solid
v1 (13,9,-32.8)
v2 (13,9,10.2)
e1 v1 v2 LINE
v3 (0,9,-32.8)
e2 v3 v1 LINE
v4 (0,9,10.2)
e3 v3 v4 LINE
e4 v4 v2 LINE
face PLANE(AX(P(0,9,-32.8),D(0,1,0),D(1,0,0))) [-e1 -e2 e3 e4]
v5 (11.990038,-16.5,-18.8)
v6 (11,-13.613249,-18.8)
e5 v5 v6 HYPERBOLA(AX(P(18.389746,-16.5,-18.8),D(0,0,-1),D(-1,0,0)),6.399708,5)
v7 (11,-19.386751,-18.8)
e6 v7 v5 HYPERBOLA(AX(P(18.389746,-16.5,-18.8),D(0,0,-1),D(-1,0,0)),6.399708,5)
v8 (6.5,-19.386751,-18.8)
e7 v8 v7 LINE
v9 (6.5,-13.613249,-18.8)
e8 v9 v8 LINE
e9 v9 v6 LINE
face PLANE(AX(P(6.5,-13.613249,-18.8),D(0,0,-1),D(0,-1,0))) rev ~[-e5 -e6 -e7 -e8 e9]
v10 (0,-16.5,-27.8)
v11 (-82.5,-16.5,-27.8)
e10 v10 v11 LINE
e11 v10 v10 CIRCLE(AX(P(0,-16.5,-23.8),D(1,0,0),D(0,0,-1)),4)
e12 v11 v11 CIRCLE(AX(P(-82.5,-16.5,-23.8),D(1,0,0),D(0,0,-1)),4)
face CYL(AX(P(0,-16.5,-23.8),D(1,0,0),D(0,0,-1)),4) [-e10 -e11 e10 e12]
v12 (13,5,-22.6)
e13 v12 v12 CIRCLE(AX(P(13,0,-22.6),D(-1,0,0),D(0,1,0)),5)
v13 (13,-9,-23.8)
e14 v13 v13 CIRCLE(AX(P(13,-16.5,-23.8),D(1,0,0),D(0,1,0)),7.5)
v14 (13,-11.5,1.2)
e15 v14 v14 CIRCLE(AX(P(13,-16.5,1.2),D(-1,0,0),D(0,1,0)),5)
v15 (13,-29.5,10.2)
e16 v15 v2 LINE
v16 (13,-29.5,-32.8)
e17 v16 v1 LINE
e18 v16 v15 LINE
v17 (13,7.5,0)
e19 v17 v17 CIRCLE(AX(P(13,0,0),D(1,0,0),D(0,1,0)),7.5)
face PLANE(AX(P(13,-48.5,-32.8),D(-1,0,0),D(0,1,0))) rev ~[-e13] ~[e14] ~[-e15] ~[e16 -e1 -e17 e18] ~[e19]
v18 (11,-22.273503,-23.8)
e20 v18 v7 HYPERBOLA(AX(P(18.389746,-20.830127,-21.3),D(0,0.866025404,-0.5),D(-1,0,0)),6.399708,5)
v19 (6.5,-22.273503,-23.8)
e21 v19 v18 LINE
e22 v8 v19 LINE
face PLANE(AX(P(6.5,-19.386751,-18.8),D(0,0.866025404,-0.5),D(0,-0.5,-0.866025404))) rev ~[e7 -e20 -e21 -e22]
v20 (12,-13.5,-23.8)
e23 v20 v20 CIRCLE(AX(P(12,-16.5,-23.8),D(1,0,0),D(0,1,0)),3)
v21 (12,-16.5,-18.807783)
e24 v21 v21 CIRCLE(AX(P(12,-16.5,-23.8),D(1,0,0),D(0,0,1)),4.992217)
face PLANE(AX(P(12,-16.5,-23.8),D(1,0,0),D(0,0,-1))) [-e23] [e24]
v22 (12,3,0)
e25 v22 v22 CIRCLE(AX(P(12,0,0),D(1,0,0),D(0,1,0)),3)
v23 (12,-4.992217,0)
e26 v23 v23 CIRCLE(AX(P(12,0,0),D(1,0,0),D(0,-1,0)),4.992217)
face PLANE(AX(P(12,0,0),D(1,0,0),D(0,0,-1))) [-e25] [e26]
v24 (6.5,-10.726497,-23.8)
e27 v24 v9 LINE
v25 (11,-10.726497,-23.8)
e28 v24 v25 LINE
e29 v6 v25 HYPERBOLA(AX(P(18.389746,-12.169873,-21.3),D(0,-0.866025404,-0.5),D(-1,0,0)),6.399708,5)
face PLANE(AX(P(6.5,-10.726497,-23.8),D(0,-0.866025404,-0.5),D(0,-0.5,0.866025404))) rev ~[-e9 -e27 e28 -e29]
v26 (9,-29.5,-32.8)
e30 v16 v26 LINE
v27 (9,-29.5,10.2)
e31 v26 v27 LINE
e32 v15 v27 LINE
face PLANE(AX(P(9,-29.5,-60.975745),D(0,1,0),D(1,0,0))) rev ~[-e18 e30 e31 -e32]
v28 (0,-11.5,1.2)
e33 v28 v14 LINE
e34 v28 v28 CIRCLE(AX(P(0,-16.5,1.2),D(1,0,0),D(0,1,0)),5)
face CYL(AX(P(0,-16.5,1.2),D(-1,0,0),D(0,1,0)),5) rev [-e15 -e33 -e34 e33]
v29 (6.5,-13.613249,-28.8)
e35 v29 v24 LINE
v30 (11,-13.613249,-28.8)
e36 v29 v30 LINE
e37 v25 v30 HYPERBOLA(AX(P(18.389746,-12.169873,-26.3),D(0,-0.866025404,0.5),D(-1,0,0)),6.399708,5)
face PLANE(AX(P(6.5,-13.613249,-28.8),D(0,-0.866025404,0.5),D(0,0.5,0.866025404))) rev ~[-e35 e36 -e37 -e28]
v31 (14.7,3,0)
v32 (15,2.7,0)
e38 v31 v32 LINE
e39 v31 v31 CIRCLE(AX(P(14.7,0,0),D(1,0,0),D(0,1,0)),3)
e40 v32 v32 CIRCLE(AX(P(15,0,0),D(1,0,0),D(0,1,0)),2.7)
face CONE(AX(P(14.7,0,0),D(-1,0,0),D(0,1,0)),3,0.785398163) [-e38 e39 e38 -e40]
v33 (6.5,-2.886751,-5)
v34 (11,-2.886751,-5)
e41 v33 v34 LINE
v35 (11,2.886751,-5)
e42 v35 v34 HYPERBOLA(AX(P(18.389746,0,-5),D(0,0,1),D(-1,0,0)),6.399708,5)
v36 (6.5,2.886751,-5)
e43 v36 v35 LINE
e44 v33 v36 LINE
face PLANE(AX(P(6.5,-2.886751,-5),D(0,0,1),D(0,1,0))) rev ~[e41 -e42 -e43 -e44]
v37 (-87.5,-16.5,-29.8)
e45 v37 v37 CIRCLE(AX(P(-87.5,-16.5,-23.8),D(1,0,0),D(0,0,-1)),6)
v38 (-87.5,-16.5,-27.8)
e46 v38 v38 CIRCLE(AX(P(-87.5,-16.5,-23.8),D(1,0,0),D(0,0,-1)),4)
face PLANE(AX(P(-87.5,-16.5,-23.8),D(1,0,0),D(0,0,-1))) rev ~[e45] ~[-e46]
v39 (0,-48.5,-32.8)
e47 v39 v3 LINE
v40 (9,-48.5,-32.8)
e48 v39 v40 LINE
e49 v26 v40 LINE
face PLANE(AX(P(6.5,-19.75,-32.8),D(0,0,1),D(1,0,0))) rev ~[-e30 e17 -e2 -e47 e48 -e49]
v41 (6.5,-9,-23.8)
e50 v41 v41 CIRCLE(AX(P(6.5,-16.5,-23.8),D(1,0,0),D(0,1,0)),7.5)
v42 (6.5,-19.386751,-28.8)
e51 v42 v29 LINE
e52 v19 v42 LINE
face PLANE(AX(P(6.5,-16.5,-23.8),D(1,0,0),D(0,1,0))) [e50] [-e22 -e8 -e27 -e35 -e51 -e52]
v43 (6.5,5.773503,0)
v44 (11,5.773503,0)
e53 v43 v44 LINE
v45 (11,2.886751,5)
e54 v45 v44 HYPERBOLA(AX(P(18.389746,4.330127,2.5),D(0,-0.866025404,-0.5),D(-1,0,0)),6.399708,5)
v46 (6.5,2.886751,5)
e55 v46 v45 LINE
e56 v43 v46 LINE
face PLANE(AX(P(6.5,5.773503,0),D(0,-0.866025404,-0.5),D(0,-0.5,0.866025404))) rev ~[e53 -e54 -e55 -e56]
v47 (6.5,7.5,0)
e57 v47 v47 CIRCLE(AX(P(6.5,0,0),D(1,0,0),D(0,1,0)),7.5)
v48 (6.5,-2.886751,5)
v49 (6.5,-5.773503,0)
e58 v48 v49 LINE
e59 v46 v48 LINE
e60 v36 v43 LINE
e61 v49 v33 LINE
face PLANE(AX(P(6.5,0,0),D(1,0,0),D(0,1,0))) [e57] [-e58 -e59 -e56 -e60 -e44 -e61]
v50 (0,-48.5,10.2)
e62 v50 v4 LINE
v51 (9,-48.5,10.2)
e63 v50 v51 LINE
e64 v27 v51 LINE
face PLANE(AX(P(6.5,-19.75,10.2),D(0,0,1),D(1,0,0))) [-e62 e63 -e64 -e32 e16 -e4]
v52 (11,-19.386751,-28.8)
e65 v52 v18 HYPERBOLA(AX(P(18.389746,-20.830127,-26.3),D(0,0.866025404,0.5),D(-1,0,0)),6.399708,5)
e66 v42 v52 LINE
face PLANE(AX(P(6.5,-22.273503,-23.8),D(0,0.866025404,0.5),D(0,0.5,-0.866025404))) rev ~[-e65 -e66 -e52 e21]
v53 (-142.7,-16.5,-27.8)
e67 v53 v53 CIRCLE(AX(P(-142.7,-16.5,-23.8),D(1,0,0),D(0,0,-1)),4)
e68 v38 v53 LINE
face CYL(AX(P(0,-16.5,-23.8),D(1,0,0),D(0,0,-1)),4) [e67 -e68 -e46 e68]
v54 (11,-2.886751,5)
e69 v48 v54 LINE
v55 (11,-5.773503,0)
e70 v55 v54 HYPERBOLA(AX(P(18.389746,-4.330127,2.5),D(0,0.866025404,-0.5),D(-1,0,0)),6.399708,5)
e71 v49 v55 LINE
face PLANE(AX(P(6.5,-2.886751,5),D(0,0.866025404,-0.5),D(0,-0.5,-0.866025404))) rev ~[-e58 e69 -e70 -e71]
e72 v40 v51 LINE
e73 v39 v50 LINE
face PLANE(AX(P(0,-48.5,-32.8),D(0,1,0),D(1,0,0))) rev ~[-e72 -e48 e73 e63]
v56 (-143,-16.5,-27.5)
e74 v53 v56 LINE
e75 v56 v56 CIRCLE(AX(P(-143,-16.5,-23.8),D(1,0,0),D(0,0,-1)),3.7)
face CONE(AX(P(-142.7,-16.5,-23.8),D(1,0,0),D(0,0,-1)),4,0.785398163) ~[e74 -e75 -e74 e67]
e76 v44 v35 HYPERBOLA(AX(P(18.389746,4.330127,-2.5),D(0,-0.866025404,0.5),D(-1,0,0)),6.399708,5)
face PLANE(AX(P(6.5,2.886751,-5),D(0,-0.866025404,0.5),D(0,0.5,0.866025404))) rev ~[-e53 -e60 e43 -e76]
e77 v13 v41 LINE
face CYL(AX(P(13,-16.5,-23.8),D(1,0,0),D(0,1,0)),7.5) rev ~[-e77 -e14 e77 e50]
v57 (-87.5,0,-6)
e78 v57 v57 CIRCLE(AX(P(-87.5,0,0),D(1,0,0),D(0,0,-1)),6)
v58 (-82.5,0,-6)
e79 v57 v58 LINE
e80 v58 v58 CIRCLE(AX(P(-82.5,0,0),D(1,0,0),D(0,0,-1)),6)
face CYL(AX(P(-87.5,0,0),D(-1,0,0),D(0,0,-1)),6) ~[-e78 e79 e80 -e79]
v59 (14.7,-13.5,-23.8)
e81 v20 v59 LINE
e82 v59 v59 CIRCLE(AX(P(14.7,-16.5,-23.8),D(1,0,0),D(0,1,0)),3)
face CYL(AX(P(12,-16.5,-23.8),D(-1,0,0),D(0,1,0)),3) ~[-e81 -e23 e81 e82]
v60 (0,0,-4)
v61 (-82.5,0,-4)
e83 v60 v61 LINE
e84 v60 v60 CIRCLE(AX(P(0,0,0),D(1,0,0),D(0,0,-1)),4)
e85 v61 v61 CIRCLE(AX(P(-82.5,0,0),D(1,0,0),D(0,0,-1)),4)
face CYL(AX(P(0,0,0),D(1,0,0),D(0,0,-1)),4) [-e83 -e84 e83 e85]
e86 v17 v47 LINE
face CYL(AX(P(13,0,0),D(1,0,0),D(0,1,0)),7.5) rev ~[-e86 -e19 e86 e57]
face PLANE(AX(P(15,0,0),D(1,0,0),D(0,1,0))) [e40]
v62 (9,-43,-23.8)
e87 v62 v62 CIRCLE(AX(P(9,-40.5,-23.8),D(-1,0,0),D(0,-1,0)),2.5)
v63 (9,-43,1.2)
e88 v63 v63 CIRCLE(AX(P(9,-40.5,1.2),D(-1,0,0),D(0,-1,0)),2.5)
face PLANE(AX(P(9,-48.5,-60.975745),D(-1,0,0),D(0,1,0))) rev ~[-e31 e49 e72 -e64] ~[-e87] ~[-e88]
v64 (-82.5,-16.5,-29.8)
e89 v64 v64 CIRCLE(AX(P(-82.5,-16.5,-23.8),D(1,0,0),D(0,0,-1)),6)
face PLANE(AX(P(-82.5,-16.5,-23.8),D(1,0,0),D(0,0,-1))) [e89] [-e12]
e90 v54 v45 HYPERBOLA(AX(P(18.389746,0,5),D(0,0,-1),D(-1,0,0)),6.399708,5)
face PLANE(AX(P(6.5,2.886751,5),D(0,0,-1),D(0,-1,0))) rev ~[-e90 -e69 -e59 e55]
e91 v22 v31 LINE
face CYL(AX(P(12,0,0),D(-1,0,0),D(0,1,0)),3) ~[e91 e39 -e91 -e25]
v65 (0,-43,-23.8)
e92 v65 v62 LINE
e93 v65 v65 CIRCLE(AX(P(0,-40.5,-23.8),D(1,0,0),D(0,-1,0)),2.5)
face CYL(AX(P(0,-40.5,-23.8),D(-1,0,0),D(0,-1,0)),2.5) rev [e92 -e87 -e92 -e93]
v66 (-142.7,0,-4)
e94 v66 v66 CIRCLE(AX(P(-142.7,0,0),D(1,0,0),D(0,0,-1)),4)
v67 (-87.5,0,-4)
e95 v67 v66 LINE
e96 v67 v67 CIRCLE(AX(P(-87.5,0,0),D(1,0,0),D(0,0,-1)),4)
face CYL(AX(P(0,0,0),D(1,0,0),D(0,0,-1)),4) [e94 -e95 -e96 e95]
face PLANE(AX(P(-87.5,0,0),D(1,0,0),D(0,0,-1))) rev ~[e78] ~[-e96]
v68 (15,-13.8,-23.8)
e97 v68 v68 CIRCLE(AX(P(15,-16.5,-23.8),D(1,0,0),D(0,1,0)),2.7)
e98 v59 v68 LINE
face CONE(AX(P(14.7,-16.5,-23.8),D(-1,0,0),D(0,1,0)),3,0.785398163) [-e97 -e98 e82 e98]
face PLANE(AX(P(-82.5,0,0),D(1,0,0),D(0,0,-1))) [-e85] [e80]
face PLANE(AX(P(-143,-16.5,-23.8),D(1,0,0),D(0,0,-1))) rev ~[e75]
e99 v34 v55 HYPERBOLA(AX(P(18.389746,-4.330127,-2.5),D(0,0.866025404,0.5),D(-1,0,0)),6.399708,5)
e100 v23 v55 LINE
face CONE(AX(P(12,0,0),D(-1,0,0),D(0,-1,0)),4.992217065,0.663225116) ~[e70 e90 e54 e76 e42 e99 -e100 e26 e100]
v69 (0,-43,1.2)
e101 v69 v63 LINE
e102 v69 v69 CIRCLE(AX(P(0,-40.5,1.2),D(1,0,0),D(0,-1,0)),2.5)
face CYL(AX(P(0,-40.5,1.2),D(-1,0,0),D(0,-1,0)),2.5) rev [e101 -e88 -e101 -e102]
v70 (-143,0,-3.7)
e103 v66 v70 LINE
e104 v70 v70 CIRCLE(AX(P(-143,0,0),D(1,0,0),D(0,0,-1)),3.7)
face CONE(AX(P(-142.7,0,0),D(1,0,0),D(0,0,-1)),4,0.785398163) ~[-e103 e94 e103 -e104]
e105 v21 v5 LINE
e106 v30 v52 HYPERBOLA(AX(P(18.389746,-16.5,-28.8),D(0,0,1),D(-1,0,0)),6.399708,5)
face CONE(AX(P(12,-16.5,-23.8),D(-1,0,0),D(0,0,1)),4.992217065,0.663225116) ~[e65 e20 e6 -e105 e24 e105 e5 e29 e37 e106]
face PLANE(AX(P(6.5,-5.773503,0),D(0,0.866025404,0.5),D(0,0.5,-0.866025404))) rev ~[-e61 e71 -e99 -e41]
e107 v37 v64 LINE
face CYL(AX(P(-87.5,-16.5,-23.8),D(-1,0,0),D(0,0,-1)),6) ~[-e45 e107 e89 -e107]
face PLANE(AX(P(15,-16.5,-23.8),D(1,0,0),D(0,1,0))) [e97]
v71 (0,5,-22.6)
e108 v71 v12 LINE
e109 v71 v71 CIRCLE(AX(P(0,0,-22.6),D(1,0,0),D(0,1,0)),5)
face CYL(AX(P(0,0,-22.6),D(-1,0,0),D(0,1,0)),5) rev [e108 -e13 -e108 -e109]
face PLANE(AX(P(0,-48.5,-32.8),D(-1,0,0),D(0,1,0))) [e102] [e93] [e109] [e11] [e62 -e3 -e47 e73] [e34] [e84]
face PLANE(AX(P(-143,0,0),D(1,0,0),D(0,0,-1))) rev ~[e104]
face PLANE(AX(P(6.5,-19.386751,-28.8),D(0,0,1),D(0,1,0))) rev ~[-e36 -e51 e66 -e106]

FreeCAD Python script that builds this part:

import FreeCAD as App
import Part
import Sketcher
from FreeCAD import Vector
Q = App.Units.Quantity


def edges_at(feature, points):
    """Names of the edges that pass closest to the given points."""
    edges = feature.Shape.Edges
    near = lambda p: min(range(len(edges)), key=lambda i: edges[i].distToShape(Part.Vertex(*p))[0])
    return sorted({f"Edge{near(p) + 1}" for p in points})


def add_polygon(sketch, points):
    """Adds a closed chain of lines whose ends are joined by coincident constraints."""
    first, n = sketch.GeometryCount, len(points)
    for a, b in zip(points, points[1:] + points[:1]):
        sketch.addGeometry(Part.LineSegment(App.Vector(*a, 0), App.Vector(*b, 0)), False)
    for i in range(n):
        sketch.addConstraint(Sketcher.Constraint("Coincident", first + i, 2, first + (i + 1) % n, 1))

doc = App.newDocument("Part")
body = doc.addObject("PartDesign::Body", "Body")

sketch1 = body.newObject("Sketcher::SketchObject", "Sketch")
sketch1.AttachmentSupport = (doc.getObject("XY_Plane"), [""])
sketch1.MapMode = "FlatFace"
add_polygon(sketch1, [(0, 9), (0, -48), (13, -48), (13, 9)])
sketch1.addConstraint([
    Sketcher.Constraint("Vertical", 0),
    Sketcher.Constraint("Horizontal", 1),
    Sketcher.Constraint("Vertical", 2),
    Sketcher.Constraint("Horizontal", 3),
    Sketcher.Constraint("PointOnObject", 0, 2, -2),
    Sketcher.Constraint("DistanceX", 1, 1, 1, 2, Q("13 mm")),
    Sketcher.Constraint("DistanceY", 0, 2, 0, 1, Q("57.5 mm")),
    Sketcher.Constraint("DistanceY", -1, 1, 2, 2, Q("9 mm")),
])
pad1 = body.newObject("PartDesign::Pad", "Pad")
pad1.Profile = sketch1
pad1.Type = "TwoLengths"
pad1.Length = 10.2
pad1.Length2 = 32.8

sketch2 = body.newObject("Sketcher::SketchObject", "Sketch001")
sketch2.AttachmentSupport = (doc.getObject("XY_Plane"), [""])
sketch2.MapMode = "FlatFace"
add_polygon(sketch2, [(9, -29.5), (9, -48.5), (13, -48.5), (13, -29.5)])
sketch2.addConstraint([
    Sketcher.Constraint("Vertical", 0),
    Sketcher.Constraint("Horizontal", 1),
    Sketcher.Constraint("Vertical", 2),
    Sketcher.Constraint("Horizontal", 3),
    Sketcher.Constraint("DistanceX", 1, 1, 1, 2, Q("4 mm")),
    Sketcher.Constraint("DistanceY", 0, 2, 0, 1, Q("19 mm")),
    Sketcher.Constraint("DistanceX", -1, 1, 0, 2, Q("9 mm")),
    Sketcher.Constraint("DistanceY", 0, 2, -1, 1, Q("48.5 mm")),
])
pocket1 = body.newObject("PartDesign::Pocket", "Pocket")
pocket1.Profile = sketch2
pocket1.Type = "ThroughAll"
pocket1.Midplane = True

sketch3 = body.newObject("Sketcher::SketchObject", "Sketch002")
sketch3.AttachmentSupport = (doc.getObject("YZ_Plane"), [""])
sketch3.MapMode = "FlatFace"
sketch3.AttachmentOffset = App.Placement(Vector(0, 0, 13), App.Rotation())
sketch3.addGeometry([
    Part.Circle(Vector(0, 0, 0), Vector(0, 0, 1), 8),
    Part.Circle(Vector(-16, -24, 0), Vector(0, 0, 1), 8),
], False)
sketch3.addConstraint([
    Sketcher.Constraint("Coincident", 0, 3, -1, 1),
    Sketcher.Constraint("Equal", 0, 1),
    Sketcher.Constraint("Diameter", 0, Q("15 mm")),
    Sketcher.Constraint("DistanceX", 1, 3, -1, 1, Q("16.5 mm")),
    Sketcher.Constraint("DistanceY", 1, 3, -1, 1, Q("23.8 mm")),
])
pocket2 = body.newObject("PartDesign::Pocket", "Pocket001")
pocket2.Profile = sketch3
pocket2.Length = 6.5

sketch4 = body.newObject("Sketcher::SketchObject", "Sketch003")
sketch4.AttachmentSupport = (doc.getObject("YZ_Plane"), [""])
sketch4.MapMode = "FlatFace"
sketch4.AttachmentOffset = App.Placement(Vector(0, 0, 6.5), App.Rotation())
add_polygon(sketch4, [(6, 0), (3, 5), (-3, 5), (-6, 0), (-3, -5), (3, -5)])
add_polygon(sketch4, [(-11, -24), (-14, -19), (-19, -19), (-22, -24), (-19, -29), (-14, -29)])
sketch4.addConstraint([
    Sketcher.Constraint("Horizontal", 1),
    Sketcher.Constraint("Horizontal", 4),
    Sketcher.Constraint("Horizontal", 7),
    Sketcher.Constraint("Horizontal", 10),
    Sketcher.Constraint("Symmetric", 0, 2, 3, 2, -1, 1),
    Sketcher.Constraint("Symmetric", 2, 2, 5, 2, -1, 1),
    Sketcher.Constraint("PointOnObject", 2, 2, -1),
    Sketcher.Constraint("Parallel", 2, 5),
    Sketcher.Constraint("Parallel", 3, 6),
    Sketcher.Constraint("Parallel", 5, 8),
    Sketcher.Constraint("Parallel", 6, 9),
    Sketcher.Constraint("Parallel", 8, 11),
    Sketcher.Constraint("Horizontal", 8, 2, 11, 2),
    Sketcher.Constraint("Vertical", 1, 2, 3, 2),
    Sketcher.Constraint("Vertical", 7, 2, 9, 2),
    Sketcher.Constraint("Equal", 4, 7),
    Sketcher.Constraint("Equal", 5, 6),
    Sketcher.Constraint("Angle", 0, Q("120 deg")),
    Sketcher.Constraint("DistanceY", -1, 1, 0, 2, Q("5 mm")),
    Sketcher.Constraint("DistanceY", 6, 2, -1, 1, Q("18.8 mm")),
    Sketcher.Constraint("DistanceX", 6, 2, 4, 2, Q("16.5 mm")),
    Sketcher.Constraint("DistanceX", 1, 2, 1, 1, Q("5.773503 mm")),
])
pad2 = body.newObject("PartDesign::Pad", "Pad001")
pad2.Profile = sketch4
pad2.Length = 5.5

sketch5 = body.newObject("Sketcher::SketchObject", "Sketch004")
sketch5.AttachmentSupport = (doc.getObject("XY_Plane"), [""])
sketch5.MapMode = "FlatFace"
add_polygon(sketch5, [(12, 5.8), (12, 5), (11, 5.8)])
sketch5.addConstraint([
    Sketcher.Constraint("Vertical", 0),
    Sketcher.Constraint("Horizontal", 2),
    Sketcher.Constraint("DistanceX", 2, 1, 2, 2, Q("1 mm")),
    Sketcher.Constraint("Angle", 1, Q("142 deg")),
    Sketcher.Constraint("DistanceX", -1, 1, 0, 2, Q("12 mm")),
    Sketcher.Constraint("DistanceY", -1, 1, 0, 2, Q("4.992217 mm")),
])
groove = body.newObject("PartDesign::Groove", "Groove")
groove.Profile = sketch5
groove.ReferenceAxis = (sketch5, ["H_Axis"])
groove.Angle = 360

sketch6 = body.newObject("Sketcher::SketchObject", "Sketch005")
sketch6.AttachmentSupport = (doc.getObject("XY_Plane"), [""])
sketch6.MapMode = "FlatFace"
sketch6.AttachmentOffset = App.Placement(Vector(0, 0, -23.8), App.Rotation())
add_polygon(sketch6, [(11, -10.7), (12, -10.7), (12, -11.5)])
sketch6.addGeometry(Part.LineSegment(Vector(11, -16.5, 0), Vector(12, -16.5, 0)), True)
sketch6.addConstraint([
    Sketcher.Constraint("Horizontal", 0),
    Sketcher.Constraint("Vertical", 1),
    Sketcher.Constraint("Horizontal", 3),
    Sketcher.Constraint("Vertical", 2, 2, 3, 1),
    Sketcher.Constraint("Vertical", 1, 2, 3, 2),
    Sketcher.Constraint("DistanceX", 0, 1, 0, 2, Q("1 mm")),
    Sketcher.Constraint("Angle", 2, Q("142 deg")),
    Sketcher.Constraint("DistanceX", -1, 1, 0, 2, Q("12 mm")),
    Sketcher.Constraint("DistanceY", 3, 1, -1, 1, Q("16.5 mm")),
    Sketcher.Constraint("DistanceY", 0, 2, -1, 1, Q("10.726497 mm")),
])
groove2 = body.newObject("PartDesign::Groove", "Groove001")
groove2.Profile = sketch6
groove2.ReferenceAxis = (sketch6, ["Axis0"])
groove2.Angle = 360

sketch7 = body.newObject("Sketcher::SketchObject", "Sketch006")
sketch7.AttachmentSupport = (doc.getObject("YZ_Plane"), [""])
sketch7.MapMode = "FlatFace"
sketch7.AttachmentOffset = App.Placement(Vector(0, 0, 12), App.Rotation())
sketch7.addGeometry([
    Part.Circle(Vector(0, 0, 0), Vector(0, 0, 1), 3),
    Part.Circle(Vector(-16.5, -23.8, 0), Vector(0, 0, 1), 3),
], False)
sketch7.addConstraint([
    Sketcher.Constraint("Coincident", 0, 3, -1, 1),
    Sketcher.Constraint("Equal", 0, 1),
    Sketcher.Constraint("Diameter", 0, Q("6 mm")),
    Sketcher.Constraint("DistanceX", 1, 3, -1, 1, Q("16.5 mm")),
    Sketcher.Constraint("DistanceY", 1, 3, -1, 1, Q("23.8 mm")),
])
pad3 = body.newObject("PartDesign::Pad", "Pad002")
pad3.Profile = sketch7
pad3.Length = 3
doc.recompute()

chamfer = body.newObject("PartDesign::Chamfer", "Chamfer")
chamfer.Base = (pad3, edges_at(pad3, [(15, -3, 0), (15, -19.5, -23.8)]))
chamfer.Size = 0.3

sketch8 = body.newObject("Sketcher::SketchObject", "Sketch007")
sketch8.AttachmentSupport = (doc.getObject("YZ_Plane"), [""])
sketch8.MapMode = "FlatFace"
sketch8.addGeometry([
    Part.Circle(Vector(0, -23, 0), Vector(0, 0, 1), 5),
    Part.Circle(Vector(-16, 1, 0), Vector(0, 0, 1), 5),
], False)
sketch8.addConstraint([
    Sketcher.Constraint("Equal", 0, 1),
    Sketcher.Constraint("PointOnObject", 0, 3, -2),
    Sketcher.Constraint("Diameter", 0, Q("10 mm")),
    Sketcher.Constraint("DistanceY", 0, 3, -1, 1, Q("22.6 mm")),
    Sketcher.Constraint("DistanceX", 1, 3, -1, 1, Q("16.5 mm")),
    Sketcher.Constraint("DistanceY", -1, 1, 1, 3, Q("1.2 mm")),
])
pocket3 = body.newObject("PartDesign::Pocket", "Pocket002")
pocket3.Profile = sketch8
pocket3.Type = "ThroughAll"
pocket3.Reversed = True

sketch9 = body.newObject("Sketcher::SketchObject", "Sketch008")
sketch9.AttachmentSupport = (doc.getObject("YZ_Plane"), [""])
sketch9.MapMode = "FlatFace"
sketch9.addGeometry([
    Part.Circle(Vector(-16.5, -23.8, 0), Vector(0, 0, 1), 4),
    Part.Circle(Vector(0, 0, 0), Vector(0, 0, 1), 4),
], False)
sketch9.addConstraint([
    Sketcher.Constraint("Coincident", 1, 3, -1, 1),
    Sketcher.Constraint("Equal", 0, 1),
    Sketcher.Constraint("Diameter", 0, Q("8 mm")),
    Sketcher.Constraint("DistanceX", 0, 3, -1, 1, Q("16.5 mm")),
    Sketcher.Constraint("DistanceY", 0, 3, -1, 1, Q("23.8 mm")),
])
pad4 = body.newObject("PartDesign::Pad", "Pad003")
pad4.Profile = sketch9
pad4.Length = 143
pad4.Reversed = True
doc.recompute()

chamfer2 = body.newObject("PartDesign::Chamfer", "Chamfer001")
chamfer2.Base = (pad4, edges_at(pad4, [(-143, -16.5, -19.8), (-143, 0, 4)]))
chamfer2.Size = 0.3

sketch10 = body.newObject("Sketcher::SketchObject", "Sketch009")
sketch10.AttachmentSupport = (doc.getObject("YZ_Plane"), [""])
sketch10.MapMode = "FlatFace"
sketch10.addGeometry([
    Part.Circle(Vector(-40.5, 1.2, 0), Vector(0, 0, 1), 2.5),
    Part.Circle(Vector(-40.5, -23.8, 0), Vector(0, 0, 1), 2.5),
], False)
sketch10.addConstraint([
    Sketcher.Constraint("Equal", 0, 1),
    Sketcher.Constraint("Vertical", 0, 3, 1, 3),
    Sketcher.Constraint("Diameter", 0, Q("5 mm")),
    Sketcher.Constraint("DistanceY", 1, 3, 0, 3, Q("25 mm")),
    Sketcher.Constraint("DistanceX", 0, 3, -1, 1, Q("40.5 mm")),
    Sketcher.Constraint("DistanceY", -1, 1, 0, 3, Q("1.2 mm")),
])
pocket4 = body.newObject("PartDesign::Pocket", "Pocket003")
pocket4.Profile = sketch10
pocket4.Type = "ThroughAll"
pocket4.Reversed = True

sketch11 = body.newObject("Sketcher::SketchObject", "Sketch010")
sketch11.AttachmentSupport = (doc.getObject("YZ_Plane"), [""])
sketch11.MapMode = "FlatFace"
sketch11.AttachmentOffset = App.Placement(Vector(0, 0, -87.5), App.Rotation())
sketch11.addGeometry([
    Part.Circle(Vector(0, 0, 0), Vector(0, 0, 1), 6),
    Part.Circle(Vector(-16, -24, 0), Vector(0, 0, 1), 6),
], False)
sketch11.addConstraint([
    Sketcher.Constraint("Coincident", 0, 3, -1, 1),
    Sketcher.Constraint("Equal", 0, 1),
    Sketcher.Constraint("Diameter", 0, Q("12 mm")),
    Sketcher.Constraint("DistanceX", 1, 3, -1, 1, Q("16.5 mm")),
    Sketcher.Constraint("DistanceY", 1, 3, -1, 1, Q("23.8 mm")),
])
pad5 = body.newObject("PartDesign::Pad", "Pad004")
pad5.Profile = sketch11
pad5.Length = 5

doc.recompute()
